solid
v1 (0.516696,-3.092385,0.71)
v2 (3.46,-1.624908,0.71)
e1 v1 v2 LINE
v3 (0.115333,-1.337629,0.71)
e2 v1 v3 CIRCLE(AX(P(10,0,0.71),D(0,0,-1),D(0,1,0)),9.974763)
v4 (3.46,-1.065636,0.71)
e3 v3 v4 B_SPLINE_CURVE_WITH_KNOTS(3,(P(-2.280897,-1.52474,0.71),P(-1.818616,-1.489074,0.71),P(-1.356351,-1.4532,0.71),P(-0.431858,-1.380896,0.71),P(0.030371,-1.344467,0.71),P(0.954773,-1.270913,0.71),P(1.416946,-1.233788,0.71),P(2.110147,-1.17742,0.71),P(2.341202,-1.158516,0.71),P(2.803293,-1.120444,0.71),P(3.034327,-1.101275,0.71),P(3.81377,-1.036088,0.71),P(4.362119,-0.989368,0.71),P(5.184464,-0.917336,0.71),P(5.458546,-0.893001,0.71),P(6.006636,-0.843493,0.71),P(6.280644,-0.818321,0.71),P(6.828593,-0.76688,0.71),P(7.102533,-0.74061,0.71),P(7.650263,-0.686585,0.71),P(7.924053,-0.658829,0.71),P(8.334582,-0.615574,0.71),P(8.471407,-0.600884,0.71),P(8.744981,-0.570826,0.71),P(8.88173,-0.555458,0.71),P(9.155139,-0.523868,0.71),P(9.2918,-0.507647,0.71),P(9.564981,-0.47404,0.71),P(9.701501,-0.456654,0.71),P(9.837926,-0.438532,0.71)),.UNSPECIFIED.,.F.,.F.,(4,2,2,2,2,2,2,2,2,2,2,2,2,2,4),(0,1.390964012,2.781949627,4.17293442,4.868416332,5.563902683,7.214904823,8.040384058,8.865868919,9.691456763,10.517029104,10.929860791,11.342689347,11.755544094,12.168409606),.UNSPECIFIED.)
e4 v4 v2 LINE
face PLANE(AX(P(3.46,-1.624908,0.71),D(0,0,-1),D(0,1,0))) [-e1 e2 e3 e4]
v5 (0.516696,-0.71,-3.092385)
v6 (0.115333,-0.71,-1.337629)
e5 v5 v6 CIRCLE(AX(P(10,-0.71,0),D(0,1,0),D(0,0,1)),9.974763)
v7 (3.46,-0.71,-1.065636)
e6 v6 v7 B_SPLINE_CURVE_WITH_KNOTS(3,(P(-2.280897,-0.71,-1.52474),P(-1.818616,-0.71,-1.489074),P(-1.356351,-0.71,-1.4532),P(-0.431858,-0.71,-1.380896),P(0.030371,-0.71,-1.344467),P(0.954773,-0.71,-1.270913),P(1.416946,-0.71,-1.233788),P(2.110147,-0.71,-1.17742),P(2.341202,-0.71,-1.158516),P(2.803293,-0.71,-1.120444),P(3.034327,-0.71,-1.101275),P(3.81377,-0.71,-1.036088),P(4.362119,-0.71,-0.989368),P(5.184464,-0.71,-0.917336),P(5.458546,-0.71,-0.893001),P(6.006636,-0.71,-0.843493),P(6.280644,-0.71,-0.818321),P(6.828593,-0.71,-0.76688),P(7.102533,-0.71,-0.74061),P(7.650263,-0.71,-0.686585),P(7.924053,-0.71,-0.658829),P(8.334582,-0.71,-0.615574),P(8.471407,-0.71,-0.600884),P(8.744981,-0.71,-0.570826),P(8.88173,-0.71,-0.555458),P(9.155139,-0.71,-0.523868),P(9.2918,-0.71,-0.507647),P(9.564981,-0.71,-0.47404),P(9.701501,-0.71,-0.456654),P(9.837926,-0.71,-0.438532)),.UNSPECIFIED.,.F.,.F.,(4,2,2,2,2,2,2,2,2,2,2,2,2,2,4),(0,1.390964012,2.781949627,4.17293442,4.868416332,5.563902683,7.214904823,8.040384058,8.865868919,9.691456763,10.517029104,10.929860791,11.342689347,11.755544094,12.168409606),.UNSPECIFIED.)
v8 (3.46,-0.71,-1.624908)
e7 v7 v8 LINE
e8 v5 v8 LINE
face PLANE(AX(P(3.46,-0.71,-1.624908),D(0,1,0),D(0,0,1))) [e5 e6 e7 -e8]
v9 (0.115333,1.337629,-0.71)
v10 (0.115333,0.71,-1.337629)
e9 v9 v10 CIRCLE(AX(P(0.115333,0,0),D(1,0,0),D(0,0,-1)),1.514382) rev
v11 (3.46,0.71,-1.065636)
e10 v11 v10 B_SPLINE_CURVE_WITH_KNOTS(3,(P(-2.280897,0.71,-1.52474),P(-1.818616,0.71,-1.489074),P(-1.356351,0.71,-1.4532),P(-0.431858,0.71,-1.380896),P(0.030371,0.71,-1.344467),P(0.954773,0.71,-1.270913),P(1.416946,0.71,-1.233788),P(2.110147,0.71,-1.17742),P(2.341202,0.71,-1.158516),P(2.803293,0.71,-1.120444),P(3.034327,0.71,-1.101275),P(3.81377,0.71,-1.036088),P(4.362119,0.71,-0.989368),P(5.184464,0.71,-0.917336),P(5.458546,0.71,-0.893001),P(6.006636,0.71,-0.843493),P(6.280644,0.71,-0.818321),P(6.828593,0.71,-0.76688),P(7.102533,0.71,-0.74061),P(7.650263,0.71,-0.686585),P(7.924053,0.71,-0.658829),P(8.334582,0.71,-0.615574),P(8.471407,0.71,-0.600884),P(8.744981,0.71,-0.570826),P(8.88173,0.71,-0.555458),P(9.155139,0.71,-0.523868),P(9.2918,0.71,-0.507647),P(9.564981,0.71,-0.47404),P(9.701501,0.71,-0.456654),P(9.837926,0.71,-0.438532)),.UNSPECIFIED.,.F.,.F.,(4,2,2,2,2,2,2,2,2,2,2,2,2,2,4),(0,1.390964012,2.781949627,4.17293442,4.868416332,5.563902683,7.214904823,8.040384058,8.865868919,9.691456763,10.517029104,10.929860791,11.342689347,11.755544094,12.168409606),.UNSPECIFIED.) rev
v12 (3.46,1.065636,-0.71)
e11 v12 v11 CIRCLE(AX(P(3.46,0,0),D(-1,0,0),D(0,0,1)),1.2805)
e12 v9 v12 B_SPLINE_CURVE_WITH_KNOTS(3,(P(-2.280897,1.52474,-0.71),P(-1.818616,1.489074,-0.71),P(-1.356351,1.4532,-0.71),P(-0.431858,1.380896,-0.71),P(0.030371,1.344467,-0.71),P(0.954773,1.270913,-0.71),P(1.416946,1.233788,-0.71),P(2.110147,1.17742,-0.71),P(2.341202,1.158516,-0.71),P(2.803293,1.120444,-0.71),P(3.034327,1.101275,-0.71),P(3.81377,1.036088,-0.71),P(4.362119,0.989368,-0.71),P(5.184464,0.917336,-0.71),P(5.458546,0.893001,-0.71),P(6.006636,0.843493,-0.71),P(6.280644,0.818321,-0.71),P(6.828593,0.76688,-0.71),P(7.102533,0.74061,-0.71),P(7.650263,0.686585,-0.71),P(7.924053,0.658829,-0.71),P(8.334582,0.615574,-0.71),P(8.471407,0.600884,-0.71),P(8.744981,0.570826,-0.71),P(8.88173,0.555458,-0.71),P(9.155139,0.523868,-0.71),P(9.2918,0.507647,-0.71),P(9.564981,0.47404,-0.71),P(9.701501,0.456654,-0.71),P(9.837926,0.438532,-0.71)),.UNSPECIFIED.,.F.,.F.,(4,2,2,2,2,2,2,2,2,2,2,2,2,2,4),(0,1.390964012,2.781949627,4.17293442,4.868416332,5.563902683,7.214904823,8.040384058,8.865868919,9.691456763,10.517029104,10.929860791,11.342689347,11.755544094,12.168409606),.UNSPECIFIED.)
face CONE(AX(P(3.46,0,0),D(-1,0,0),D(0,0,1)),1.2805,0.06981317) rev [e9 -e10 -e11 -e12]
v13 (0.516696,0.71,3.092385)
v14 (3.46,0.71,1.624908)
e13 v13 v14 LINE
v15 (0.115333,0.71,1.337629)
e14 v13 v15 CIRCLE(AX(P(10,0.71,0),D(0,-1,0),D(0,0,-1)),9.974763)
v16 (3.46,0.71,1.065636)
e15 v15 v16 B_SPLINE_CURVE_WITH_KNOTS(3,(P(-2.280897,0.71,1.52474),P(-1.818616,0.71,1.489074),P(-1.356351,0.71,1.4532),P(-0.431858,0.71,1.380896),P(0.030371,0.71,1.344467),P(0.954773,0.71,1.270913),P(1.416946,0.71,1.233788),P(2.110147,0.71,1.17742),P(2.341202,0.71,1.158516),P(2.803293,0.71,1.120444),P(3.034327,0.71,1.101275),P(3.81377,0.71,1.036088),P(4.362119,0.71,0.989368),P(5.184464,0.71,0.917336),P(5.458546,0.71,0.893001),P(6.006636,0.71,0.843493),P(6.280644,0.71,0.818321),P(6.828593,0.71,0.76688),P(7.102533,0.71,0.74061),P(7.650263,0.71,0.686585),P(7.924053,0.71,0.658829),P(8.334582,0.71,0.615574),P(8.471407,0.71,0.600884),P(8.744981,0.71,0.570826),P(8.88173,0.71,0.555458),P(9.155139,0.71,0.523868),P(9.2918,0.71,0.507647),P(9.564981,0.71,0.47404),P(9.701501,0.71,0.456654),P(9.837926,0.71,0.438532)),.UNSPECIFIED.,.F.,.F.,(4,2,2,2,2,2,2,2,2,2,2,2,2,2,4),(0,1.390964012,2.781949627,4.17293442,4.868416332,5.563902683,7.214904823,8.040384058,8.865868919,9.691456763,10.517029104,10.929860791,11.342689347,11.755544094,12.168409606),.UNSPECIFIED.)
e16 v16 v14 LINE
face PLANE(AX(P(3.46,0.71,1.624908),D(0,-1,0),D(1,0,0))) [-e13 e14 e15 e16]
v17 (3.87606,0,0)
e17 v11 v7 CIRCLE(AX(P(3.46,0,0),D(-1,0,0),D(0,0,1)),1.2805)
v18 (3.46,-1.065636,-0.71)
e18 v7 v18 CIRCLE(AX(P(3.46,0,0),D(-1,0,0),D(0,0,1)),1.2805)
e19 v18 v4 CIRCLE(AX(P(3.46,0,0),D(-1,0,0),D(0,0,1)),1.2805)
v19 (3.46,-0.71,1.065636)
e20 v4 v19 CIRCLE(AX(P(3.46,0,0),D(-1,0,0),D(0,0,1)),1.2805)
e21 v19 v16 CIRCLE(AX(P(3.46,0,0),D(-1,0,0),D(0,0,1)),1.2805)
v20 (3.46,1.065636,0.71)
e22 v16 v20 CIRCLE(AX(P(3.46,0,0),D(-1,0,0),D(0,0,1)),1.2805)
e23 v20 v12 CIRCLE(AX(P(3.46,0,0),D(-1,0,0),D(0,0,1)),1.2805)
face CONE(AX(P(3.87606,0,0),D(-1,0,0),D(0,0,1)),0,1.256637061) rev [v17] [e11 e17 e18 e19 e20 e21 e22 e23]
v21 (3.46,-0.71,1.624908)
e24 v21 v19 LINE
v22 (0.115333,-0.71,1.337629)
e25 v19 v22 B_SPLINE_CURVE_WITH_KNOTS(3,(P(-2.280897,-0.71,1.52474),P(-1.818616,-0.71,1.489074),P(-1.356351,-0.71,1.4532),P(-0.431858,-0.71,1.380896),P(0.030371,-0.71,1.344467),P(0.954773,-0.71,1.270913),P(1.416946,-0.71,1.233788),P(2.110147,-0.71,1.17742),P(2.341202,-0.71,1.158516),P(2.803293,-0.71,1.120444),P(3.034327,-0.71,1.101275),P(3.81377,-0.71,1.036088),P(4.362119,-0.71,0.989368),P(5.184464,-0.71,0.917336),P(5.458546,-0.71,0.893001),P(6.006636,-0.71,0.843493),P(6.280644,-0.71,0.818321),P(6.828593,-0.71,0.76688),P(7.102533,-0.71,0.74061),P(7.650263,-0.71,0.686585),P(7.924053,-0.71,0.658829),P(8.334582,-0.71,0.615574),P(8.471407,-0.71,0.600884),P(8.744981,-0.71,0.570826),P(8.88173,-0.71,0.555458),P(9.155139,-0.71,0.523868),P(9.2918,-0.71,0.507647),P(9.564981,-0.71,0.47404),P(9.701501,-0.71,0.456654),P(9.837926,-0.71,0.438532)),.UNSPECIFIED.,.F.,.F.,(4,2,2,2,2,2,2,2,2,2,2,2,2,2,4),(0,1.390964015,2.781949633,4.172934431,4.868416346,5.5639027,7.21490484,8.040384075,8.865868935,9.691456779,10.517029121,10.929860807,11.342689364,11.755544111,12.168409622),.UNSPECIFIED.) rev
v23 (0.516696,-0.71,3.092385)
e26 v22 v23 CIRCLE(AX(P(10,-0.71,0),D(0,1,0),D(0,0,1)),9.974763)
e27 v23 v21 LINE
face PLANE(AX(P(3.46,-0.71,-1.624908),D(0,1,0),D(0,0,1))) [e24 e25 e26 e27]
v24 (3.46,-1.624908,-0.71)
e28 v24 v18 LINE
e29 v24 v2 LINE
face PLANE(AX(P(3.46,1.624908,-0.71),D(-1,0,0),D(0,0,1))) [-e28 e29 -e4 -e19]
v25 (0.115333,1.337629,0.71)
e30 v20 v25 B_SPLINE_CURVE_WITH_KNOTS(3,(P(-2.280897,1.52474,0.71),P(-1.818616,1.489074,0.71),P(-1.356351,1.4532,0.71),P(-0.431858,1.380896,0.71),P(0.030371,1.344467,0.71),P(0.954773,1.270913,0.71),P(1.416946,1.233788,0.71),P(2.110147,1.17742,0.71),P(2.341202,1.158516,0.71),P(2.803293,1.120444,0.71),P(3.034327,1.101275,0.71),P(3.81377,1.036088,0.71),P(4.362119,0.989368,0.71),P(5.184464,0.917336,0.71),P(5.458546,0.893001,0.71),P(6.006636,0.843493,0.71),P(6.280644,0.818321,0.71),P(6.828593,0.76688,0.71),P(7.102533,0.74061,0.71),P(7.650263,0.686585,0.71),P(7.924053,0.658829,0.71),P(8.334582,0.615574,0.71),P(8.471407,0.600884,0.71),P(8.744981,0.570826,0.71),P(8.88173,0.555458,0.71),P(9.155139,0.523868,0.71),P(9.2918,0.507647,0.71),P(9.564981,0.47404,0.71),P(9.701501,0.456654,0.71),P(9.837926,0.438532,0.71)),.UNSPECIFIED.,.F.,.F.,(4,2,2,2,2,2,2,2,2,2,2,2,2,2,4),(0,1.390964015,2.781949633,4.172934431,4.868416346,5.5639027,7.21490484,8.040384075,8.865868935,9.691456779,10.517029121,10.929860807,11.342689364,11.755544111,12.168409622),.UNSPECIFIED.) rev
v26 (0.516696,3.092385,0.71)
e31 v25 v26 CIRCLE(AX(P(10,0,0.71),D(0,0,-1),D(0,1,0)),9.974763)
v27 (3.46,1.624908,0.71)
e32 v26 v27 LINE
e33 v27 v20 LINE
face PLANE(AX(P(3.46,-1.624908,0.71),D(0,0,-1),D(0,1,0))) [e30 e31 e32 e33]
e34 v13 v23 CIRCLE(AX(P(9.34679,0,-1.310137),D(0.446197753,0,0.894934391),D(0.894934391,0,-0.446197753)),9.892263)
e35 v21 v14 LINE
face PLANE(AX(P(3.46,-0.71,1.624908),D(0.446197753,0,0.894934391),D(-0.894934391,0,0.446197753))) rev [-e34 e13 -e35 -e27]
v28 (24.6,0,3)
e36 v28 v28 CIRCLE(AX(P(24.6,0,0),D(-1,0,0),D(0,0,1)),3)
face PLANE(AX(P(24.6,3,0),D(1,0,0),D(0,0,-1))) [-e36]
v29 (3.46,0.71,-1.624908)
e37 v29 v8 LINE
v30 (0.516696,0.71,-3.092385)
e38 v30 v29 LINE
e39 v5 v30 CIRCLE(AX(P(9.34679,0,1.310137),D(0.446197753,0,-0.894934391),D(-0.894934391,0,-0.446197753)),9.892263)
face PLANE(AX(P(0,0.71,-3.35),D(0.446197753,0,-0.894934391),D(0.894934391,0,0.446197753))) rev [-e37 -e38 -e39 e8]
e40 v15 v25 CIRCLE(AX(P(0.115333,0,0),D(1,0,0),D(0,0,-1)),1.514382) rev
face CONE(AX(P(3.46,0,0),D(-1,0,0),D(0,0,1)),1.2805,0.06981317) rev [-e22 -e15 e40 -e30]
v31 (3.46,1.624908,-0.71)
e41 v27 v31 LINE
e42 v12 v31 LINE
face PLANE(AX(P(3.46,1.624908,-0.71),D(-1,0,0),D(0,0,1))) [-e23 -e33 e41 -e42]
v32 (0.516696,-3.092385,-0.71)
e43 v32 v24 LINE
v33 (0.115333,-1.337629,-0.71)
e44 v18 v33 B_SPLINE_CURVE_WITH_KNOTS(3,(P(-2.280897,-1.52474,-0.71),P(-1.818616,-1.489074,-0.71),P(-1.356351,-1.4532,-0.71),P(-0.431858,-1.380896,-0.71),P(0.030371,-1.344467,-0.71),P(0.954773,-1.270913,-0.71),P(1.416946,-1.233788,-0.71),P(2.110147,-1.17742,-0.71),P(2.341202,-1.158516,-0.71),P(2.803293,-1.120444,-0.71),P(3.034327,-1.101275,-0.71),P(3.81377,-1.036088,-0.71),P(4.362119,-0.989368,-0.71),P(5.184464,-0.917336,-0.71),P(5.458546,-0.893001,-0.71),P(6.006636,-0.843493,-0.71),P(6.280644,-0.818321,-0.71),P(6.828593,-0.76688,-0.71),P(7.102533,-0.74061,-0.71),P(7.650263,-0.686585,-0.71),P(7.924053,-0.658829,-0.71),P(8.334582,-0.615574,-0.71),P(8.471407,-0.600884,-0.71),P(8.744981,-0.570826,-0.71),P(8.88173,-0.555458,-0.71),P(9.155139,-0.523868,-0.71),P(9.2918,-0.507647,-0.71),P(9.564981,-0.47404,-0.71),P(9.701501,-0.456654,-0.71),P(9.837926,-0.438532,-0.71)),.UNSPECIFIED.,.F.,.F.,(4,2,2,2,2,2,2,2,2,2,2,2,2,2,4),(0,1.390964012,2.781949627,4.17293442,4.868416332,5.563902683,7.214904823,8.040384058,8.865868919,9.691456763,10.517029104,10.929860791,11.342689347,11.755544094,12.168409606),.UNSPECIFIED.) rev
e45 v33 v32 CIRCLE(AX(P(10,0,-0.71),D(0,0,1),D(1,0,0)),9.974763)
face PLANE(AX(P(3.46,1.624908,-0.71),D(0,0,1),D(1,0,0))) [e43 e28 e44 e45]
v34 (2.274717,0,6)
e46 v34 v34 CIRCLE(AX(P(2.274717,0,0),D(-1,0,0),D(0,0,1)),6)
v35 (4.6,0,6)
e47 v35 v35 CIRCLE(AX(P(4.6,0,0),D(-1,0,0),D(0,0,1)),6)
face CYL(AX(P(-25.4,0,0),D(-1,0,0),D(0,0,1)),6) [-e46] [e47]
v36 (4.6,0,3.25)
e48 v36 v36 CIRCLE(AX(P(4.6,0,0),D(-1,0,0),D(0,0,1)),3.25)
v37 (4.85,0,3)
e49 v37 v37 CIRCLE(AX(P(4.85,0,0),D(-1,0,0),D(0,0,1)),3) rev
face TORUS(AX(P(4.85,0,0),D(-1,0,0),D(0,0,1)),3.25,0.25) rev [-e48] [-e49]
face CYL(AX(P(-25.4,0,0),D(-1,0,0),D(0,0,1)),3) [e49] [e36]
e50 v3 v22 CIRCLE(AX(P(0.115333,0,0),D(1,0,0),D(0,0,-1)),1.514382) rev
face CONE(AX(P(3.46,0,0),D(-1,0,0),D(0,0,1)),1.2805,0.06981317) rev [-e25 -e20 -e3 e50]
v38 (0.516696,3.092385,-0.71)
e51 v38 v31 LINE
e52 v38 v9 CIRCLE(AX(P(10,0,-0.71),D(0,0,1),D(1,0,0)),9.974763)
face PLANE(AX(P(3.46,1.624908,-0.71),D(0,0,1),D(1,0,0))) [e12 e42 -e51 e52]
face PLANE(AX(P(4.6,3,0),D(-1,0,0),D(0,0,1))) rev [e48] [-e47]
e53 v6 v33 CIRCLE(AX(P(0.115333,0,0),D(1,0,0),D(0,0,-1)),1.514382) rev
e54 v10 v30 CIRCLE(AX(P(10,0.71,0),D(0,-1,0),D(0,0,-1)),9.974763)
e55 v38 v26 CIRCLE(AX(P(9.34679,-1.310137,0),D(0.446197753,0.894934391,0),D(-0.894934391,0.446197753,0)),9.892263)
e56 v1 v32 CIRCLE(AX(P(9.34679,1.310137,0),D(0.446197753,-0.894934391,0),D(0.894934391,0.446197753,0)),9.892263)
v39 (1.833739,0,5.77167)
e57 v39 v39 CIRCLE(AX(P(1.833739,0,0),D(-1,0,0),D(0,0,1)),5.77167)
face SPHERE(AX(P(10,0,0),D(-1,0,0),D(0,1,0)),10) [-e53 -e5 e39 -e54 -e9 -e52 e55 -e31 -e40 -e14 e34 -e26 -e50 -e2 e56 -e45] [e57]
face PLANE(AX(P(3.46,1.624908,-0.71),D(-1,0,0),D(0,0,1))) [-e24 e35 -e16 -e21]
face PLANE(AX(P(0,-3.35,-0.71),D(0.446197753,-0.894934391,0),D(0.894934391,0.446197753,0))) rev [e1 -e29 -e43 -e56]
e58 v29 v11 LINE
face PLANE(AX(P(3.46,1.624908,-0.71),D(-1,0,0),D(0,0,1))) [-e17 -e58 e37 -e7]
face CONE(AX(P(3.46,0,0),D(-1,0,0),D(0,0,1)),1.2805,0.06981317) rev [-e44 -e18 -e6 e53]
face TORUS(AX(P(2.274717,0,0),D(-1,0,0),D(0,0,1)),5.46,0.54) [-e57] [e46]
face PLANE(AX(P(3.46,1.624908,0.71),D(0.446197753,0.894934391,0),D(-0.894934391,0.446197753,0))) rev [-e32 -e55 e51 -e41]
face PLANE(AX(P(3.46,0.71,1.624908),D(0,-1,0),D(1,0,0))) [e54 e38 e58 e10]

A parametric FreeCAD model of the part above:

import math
import FreeCAD as App
import Part
import Sketcher

V = App.Vector
Q = App.Units.Quantity


def edges_at(feature, points):
    """Names of the edges that pass closest to the given points."""
    edges = feature.Shape.Edges
    near = lambda p: min(range(len(edges)), key=lambda i: edges[i].distToShape(Part.Vertex(*p))[0])
    return sorted({f"Edge{near(p) + 1}" for p in points})

doc = App.newDocument("Part")
params = doc.addObject("Spreadsheet::Sheet", "Params")
for row, (alias, value) in enumerate([
    ("sketch1_radius", "10 mm"),
    ("sketch1_width", "20 mm"),
    ("sketch1_height", "3 mm"),
    ("sketch1_radius2", "0.54 mm"),
    ("sketch1_width2", "24.6 mm"),
    ("revolution_angle", "360 deg"),
    ("fillet_radius", "0.25 mm"),
    ("sketch2_width", "6.7 mm"),
    ("sketch2_height", "1.42 mm"),
    ("sketch3_height", "1.42 mm"),
    ("groove_angle", "360 deg"),
], start=1):
    params.set(f"A{row}", alias)
    params.set(f"B{row}", "=" + value)
    params.setAlias(f"B{row}", alias)

body = doc.addObject("PartDesign::Body", "Body")

sketch1 = doc.addObject("Sketcher::SketchObject", "Sketch")
body.addObject(sketch1)
sketch1.AttachmentSupport = (doc.XY_Plane, [""])
sketch1.MapMode = "FlatFace"
sketch1.addGeometry([
    Part.LineSegment(V(4.6, 3, 0), V(4.6, 6, 0)),
    Part.LineSegment(V(4.6, 6, 0), V(2.27, 6, 0)),
    Part.ArcOfCircle(Part.Circle(V(2.27, 5.46, 0), V(0, 0, 1), 0.54), math.radians(90), math.radians(145)),
    Part.ArcOfCircle(Part.Circle(V(10, 0, 0), V(0, 0, 1), 10), math.radians(145), math.radians(180)),
    Part.LineSegment(V(0, 0, 0), V(24.6, 0, 0)),
    Part.LineSegment(V(24.6, 0, 0), V(24.6, 3, 0)),
    Part.LineSegment(V(24.6, 3, 0), V(4.6, 3, 0)),
], False)
sketch1.addConstraint([
    Sketcher.Constraint("Coincident", 0, 2, 1, 1),
    Sketcher.Constraint("Tangent", 1, 2, 2, 1),
    Sketcher.Constraint("Tangent", 2, 2, 3, 1),
    Sketcher.Constraint("Coincident", 3, 2, 4, 1),
    Sketcher.Constraint("Coincident", 4, 2, 5, 1),
    Sketcher.Constraint("Coincident", 5, 2, 6, 1),
    Sketcher.Constraint("Coincident", 6, 2, 0, 1),
    Sketcher.Constraint("Vertical", 0),
    Sketcher.Constraint("Horizontal", 1),
    Sketcher.Constraint("Horizontal", 4),
    Sketcher.Constraint("Vertical", 5),
    Sketcher.Constraint("Horizontal", 6),
    Sketcher.Constraint("Coincident", 3, 2, -1, 1),
    Sketcher.Constraint("PointOnObject", 3, 3, -1),
    Sketcher.Constraint("Equal", 0, 5),
    Sketcher.Constraint("Radius", 3, 10.0),
    Sketcher.Constraint("DistanceX", 6, 2, 6, 1, 20.0),
    Sketcher.Constraint("DistanceY", 0, 1, 0, 2, 3.0),
    Sketcher.Constraint("Radius", 2, 0.54),
    Sketcher.Constraint("DistanceX", 4, 1, 4, 2, 24.6),
])
sketch1.setExpression("Constraints[15]", "Params.sketch1_radius")
sketch1.setExpression("Constraints[16]", "Params.sketch1_width")
sketch1.setExpression("Constraints[17]", "Params.sketch1_height")
sketch1.setExpression("Constraints[18]", "Params.sketch1_radius2")
sketch1.setExpression("Constraints[19]", "Params.sketch1_width2")
revolution = doc.addObject("PartDesign::Revolution", "Revolution")
body.addObject(revolution)
revolution.Profile = sketch1
revolution.ReferenceAxis = (sketch1, ["H_Axis"])
revolution.setExpression("Angle", "Params.revolution_angle")
doc.recompute()

fillet = doc.addObject("PartDesign::Fillet", "Fillet")
body.addObject(fillet)
fillet.Base = (revolution, edges_at(revolution, [(4.6, -3, 0)]))
fillet.setExpression("Radius", "Params.fillet_radius")

sketch2 = doc.addObject("Sketcher::SketchObject", "Sketch001")
body.addObject(sketch2)
sketch2.AttachmentSupport = (doc.YZ_Plane, [""])
sketch2.MapMode = "FlatFace"
sketch2.addGeometry([
    Part.LineSegment(V(3.4, 0.7, 0), V(-3.4, 0.7, 0)),
    Part.LineSegment(V(-3.4, 0.7, 0), V(-3.4, -0.7, 0)),
    Part.LineSegment(V(-3.4, -0.7, 0), V(3.4, -0.7, 0)),
    Part.LineSegment(V(3.4, -0.7, 0), V(3.4, 0.7, 0)),
], False)
sketch2.addConstraint([
    Sketcher.Constraint("Coincident", 0, 2, 1, 1),
    Sketcher.Constraint("Coincident", 1, 2, 2, 1),
    Sketcher.Constraint("Coincident", 2, 2, 3, 1),
    Sketcher.Constraint("Coincident", 3, 2, 0, 1),
    Sketcher.Constraint("Horizontal", 0),
    Sketcher.Constraint("Vertical", 1),
    Sketcher.Constraint("Horizontal", 2),
    Sketcher.Constraint("Vertical", 3),
    Sketcher.Constraint("Symmetric", 0, 2, 2, 2, -1, 1),
    Sketcher.Constraint("DistanceX", 0, 2, 0, 1, 6.7),
    Sketcher.Constraint("DistanceY", 1, 2, 1, 1, 1.42),
])
sketch2.setExpression("Constraints[9]", "Params.sketch2_width")
sketch2.setExpression("Constraints[10]", "Params.sketch2_height")

sketch3 = doc.addObject("Sketcher::SketchObject", "Sketch002")
body.addObject(sketch3)
sketch3.AttachmentSupport = (doc.YZ_Plane, [""])
sketch3.MapMode = "FlatFace"
sketch3.AttachmentOffset = App.Placement(V(0, 0, 3.46), App.Rotation())
sketch3.addGeometry([
    Part.LineSegment(V(1.6, 0.7, 0), V(-1.6, 0.7, 0)),
    Part.LineSegment(V(-1.6, 0.7, 0), V(-1.6, -0.7, 0)),
    Part.LineSegment(V(-1.6, -0.7, 0), V(1.6, -0.7, 0)),
    Part.LineSegment(V(1.6, -0.7, 0), V(1.6, 0.7, 0)),
], False)
sketch3.addConstraint([
    Sketcher.Constraint("Coincident", 0, 2, 1, 1),
    Sketcher.Constraint("Coincident", 1, 2, 2, 1),
    Sketcher.Constraint("Coincident", 2, 2, 3, 1),
    Sketcher.Constraint("Coincident", 3, 2, 0, 1),
    Sketcher.Constraint("Horizontal", 0),
    Sketcher.Constraint("Vertical", 1),
    Sketcher.Constraint("Horizontal", 2),
    Sketcher.Constraint("Vertical", 3),
    Sketcher.Constraint("Symmetric", 0, 2, 2, 2, -1, 1),
    Sketcher.Constraint("DistanceY", 1, 2, 1, 1, 1.42),
    Sketcher.Constraint("DistanceX", 0, 2, 0, 1, 3.249816),
])
sketch3.setExpression("Constraints[9]", "Params.sketch3_height")

subtractiveloft = doc.addObject("PartDesign::SubtractiveLoft", "SubtractiveLoft")
body.addObject(subtractiveloft)
subtractiveloft.Profile = sketch2
subtractiveloft.Sections = [sketch3]
doc.recompute()

polarpattern = doc.addObject("PartDesign::PolarPattern", "PolarPattern")
body.addObject(polarpattern)
polarpattern.Originals = [subtractiveloft]
polarpattern.Axis = (doc.X_Axis, [""])
polarpattern.Angle = 90
polarpattern.Occurrences = 2
body.Tip = polarpattern

sketch4 = doc.addObject("Sketcher::SketchObject", "Sketch003")
body.addObject(sketch4)
sketch4.AttachmentSupport = (doc.XY_Plane, [""])
sketch4.MapMode = "FlatFace"
sketch4.addGeometry([
    Part.LineSegment(V(0, 1.5, 0), V(0, 0, 0)),
    Part.LineSegment(V(0, 0, 0), V(3.9, 0, 0)),
    Part.LineSegment(V(3.9, 0, 0), V(3.5, 1.3, 0)),
    Part.LineSegment(V(3.5, 1.3, 0), V(0, 1.5, 0)),
], False)
sketch4.addConstraint([
    Sketcher.Constraint("Coincident", 0, 2, 1, 1),
    Sketcher.Constraint("Coincident", 1, 2, 2, 1),
    Sketcher.Constraint("Coincident", 2, 2, 3, 1),
    Sketcher.Constraint("Coincident", 3, 2, 0, 1),
    Sketcher.Constraint("Vertical", 0),
    Sketcher.Constraint("Horizontal", 1),
    Sketcher.Constraint("Coincident", 0, 2, -1, 1),
    Sketcher.Constraint("Angle", 2, Q("108 deg")),
    Sketcher.Constraint("Angle", 3, Q("176 deg")),
    Sketcher.Constraint("DistanceX", -1, 1, 2, 2, 3.46),
    Sketcher.Constraint("DistanceX", 1, 1, 1, 2, 3.87606),
])
groove = doc.addObject("PartDesign::Groove", "Groove")
body.addObject(groove)
groove.Profile = sketch4
groove.ReferenceAxis = (sketch4, ["H_Axis"])
groove.setExpression("Angle", "Params.groove_angle")

doc.recompute()
